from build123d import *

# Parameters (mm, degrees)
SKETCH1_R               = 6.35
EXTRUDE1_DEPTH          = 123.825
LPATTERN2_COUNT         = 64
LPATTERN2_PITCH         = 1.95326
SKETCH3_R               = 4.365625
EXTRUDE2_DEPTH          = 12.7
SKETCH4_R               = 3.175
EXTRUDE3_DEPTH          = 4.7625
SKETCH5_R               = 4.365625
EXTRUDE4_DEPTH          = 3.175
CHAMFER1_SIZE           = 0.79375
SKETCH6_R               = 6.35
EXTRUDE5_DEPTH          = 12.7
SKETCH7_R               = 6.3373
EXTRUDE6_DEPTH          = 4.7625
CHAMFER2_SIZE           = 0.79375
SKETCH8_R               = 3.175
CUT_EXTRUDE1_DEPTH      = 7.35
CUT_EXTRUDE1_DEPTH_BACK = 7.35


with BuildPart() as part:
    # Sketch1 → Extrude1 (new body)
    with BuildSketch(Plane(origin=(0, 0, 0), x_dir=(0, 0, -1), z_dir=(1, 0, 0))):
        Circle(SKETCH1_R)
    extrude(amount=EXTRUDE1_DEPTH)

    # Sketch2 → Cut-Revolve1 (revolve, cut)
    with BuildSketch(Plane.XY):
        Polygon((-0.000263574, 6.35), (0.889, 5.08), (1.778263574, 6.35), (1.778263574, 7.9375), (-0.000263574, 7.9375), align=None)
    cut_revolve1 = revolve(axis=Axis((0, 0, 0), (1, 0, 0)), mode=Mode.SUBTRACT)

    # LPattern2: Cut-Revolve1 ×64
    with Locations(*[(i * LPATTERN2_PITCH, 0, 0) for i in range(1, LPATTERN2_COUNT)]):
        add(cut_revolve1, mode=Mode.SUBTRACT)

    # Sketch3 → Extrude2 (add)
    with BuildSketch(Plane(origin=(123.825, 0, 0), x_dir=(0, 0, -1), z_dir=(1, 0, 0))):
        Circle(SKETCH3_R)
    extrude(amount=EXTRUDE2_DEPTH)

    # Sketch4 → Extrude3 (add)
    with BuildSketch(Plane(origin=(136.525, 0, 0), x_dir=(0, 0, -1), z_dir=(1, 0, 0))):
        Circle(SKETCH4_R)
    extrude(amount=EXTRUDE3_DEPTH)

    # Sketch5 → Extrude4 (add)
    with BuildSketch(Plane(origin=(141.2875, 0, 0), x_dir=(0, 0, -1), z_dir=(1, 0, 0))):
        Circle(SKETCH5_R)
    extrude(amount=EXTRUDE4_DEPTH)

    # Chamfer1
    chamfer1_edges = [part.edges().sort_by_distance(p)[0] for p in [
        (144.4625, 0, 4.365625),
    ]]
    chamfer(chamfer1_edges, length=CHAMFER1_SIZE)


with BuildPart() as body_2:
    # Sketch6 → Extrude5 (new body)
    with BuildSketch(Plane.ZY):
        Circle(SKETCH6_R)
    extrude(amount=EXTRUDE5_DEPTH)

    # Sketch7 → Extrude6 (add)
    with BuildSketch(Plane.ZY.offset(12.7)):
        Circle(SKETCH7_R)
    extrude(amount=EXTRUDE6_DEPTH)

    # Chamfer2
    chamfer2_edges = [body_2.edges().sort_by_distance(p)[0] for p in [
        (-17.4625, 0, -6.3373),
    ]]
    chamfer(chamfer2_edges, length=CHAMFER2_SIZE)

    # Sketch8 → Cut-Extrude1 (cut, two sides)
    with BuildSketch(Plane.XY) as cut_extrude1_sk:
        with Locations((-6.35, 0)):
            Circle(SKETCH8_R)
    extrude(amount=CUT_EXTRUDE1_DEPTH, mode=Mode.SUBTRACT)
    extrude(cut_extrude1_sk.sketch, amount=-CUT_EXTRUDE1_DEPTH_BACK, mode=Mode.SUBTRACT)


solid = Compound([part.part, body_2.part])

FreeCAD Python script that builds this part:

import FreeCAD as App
import Part
import Sketcher
from FreeCAD import Vector
Q = App.Units.Quantity


def edges_at(feature, points):
    """Names of the edges that pass closest to the given points."""
    edges = feature.Shape.Edges
    near = lambda p: min(range(len(edges)), key=lambda i: edges[i].distToShape(Part.Vertex(*p))[0])
    return sorted({f"Edge{near(p) + 1}" for p in points})

doc = App.newDocument("Part")
body = doc.addObject("PartDesign::Body", "Body")

sketch1 = doc.addObject("Sketcher::SketchObject", "Sketch")
body.addObject(sketch1)
sketch1.AttachmentSupport = (doc.YZ_Plane, [""])
sketch1.MapMode = "FlatFace"
sketch1.addGeometry(Part.Circle(Vector(0, 0, 0), Vector(0, 0, 1), 6), False)
sketch1.addConstraint(Sketcher.Constraint("Coincident", 0, 3, -1, 1))
sketch1.addConstraint(Sketcher.Constraint("Diameter", 0, Q("0.5 in")))
pad1 = doc.addObject("PartDesign::Pad", "Pad")
body.addObject(pad1)
pad1.Profile = sketch1
pad1.Length = Q("4.875 in")

sketch2 = doc.addObject("Sketcher::SketchObject", "Sketch001")
body.addObject(sketch2)
sketch2.AttachmentSupport = (doc.XY_Plane, [""])
sketch2.MapMode = "FlatFace"
sketch2.addGeometry(Part.LineSegment(Vector(0, 6.3, 0), Vector(0.9, 5.1, 0)), False)
sketch2.addGeometry(Part.LineSegment(Vector(0.9, 5.1, 0), Vector(1.8, 6.3, 0)), False)
sketch2.addGeometry(Part.LineSegment(Vector(1.8, 6.3, 0), Vector(1.8, 7.9, 0)), False)
sketch2.addGeometry(Part.LineSegment(Vector(1.8, 7.9, 0), Vector(0, 7.9, 0)), False)
sketch2.addGeometry(Part.LineSegment(Vector(0, 7.9, 0), Vector(0, 6.3, 0)), False)
sketch2.addConstraint(Sketcher.Constraint("Coincident", 0, 2, 1, 1))
sketch2.addConstraint(Sketcher.Constraint("Coincident", 1, 2, 2, 1))
sketch2.addConstraint(Sketcher.Constraint("Coincident", 2, 2, 3, 1))
sketch2.addConstraint(Sketcher.Constraint("Coincident", 3, 2, 4, 1))
sketch2.addConstraint(Sketcher.Constraint("Coincident", 4, 2, 0, 1))
sketch2.addConstraint(Sketcher.Constraint("Vertical", 2))
sketch2.addConstraint(Sketcher.Constraint("Horizontal", 3))
sketch2.addConstraint(Sketcher.Constraint("Vertical", 4))
sketch2.addConstraint(Sketcher.Constraint("Horizontal", 1, 2, 4, 2))
sketch2.addConstraint(Sketcher.Constraint("Equal", 0, 1))
sketch2.addConstraint(Sketcher.Constraint("Angle", 0, Q("-55 deg")))
sketch2.addConstraint(Sketcher.Constraint("DistanceY", -1, 1, 0, 2, Q("0.2 in")))
sketch2.addConstraint(Sketcher.Constraint("DistanceY", 2, 1, 2, 2, Q("0.0625 in")))
sketch2.addConstraint(Sketcher.Constraint("DistanceY", -1, 1, 1, 2, Q("0.25 in")))
sketch2.addConstraint(Sketcher.Constraint("DistanceX", -1, 1, 0, 2, Q("0.035 in")))
groove = doc.addObject("PartDesign::Groove", "Groove")
body.addObject(groove)
groove.Profile = sketch2
groove.ReferenceAxis = (sketch2, ["H_Axis"])
groove.Angle = 360
doc.recompute()

linearpattern = doc.addObject("PartDesign::LinearPattern", "LinearPattern")
body.addObject(linearpattern)
linearpattern.Originals = [groove]
linearpattern.Direction = (doc.X_Axis, [""])
linearpattern.Mode = "offset"
linearpattern.Offset = Q("0.0769 in")
linearpattern.Occurrences = 64
body.Tip = linearpattern

sketch3 = doc.addObject("Sketcher::SketchObject", "Sketch002")
body.addObject(sketch3)
sketch3.AttachmentSupport = (doc.YZ_Plane, [""])
sketch3.MapMode = "FlatFace"
sketch3.AttachmentOffset = App.Placement(Vector(0, 0, 4.875 * 25.4), App.Rotation())
sketch3.addGeometry(Part.Circle(Vector(0, 0, 0), Vector(0, 0, 1), 4.4), False)
sketch3.addConstraint(Sketcher.Constraint("Coincident", 0, 3, -1, 1))
sketch3.addConstraint(Sketcher.Constraint("Diameter", 0, Q("0.34375 in")))
pad2 = doc.addObject("PartDesign::Pad", "Pad001")
body.addObject(pad2)
pad2.Profile = sketch3
pad2.Length = Q("0.5 in")

sketch4 = doc.addObject("Sketcher::SketchObject", "Sketch003")
body.addObject(sketch4)
sketch4.AttachmentSupport = (doc.YZ_Plane, [""])
sketch4.MapMode = "FlatFace"
sketch4.AttachmentOffset = App.Placement(Vector(0, 0, 5.375 * 25.4), App.Rotation())
sketch4.addGeometry(Part.Circle(Vector(0, 0, 0), Vector(0, 0, 1), 3.2), False)
sketch4.addConstraint(Sketcher.Constraint("Coincident", 0, 3, -1, 1))
sketch4.addConstraint(Sketcher.Constraint("Diameter", 0, Q("0.25 in")))
pad3 = doc.addObject("PartDesign::Pad", "Pad002")
body.addObject(pad3)
pad3.Profile = sketch4
pad3.Length = Q("0.1875 in")

sketch5 = doc.addObject("Sketcher::SketchObject", "Sketch004")
body.addObject(sketch5)
sketch5.AttachmentSupport = (doc.YZ_Plane, [""])
sketch5.MapMode = "FlatFace"
sketch5.AttachmentOffset = App.Placement(Vector(0, 0, 5.5625 * 25.4), App.Rotation())
sketch5.addGeometry(Part.Circle(Vector(0, 0, 0), Vector(0, 0, 1), 4.4), False)
sketch5.addConstraint(Sketcher.Constraint("Coincident", 0, 3, -1, 1))
sketch5.addConstraint(Sketcher.Constraint("Diameter", 0, Q("0.34375 in")))
pad4 = doc.addObject("PartDesign::Pad", "Pad003")
body.addObject(pad4)
pad4.Profile = sketch5
pad4.Length = Q("0.125 in")
doc.recompute()

chamfer = doc.addObject("PartDesign::Chamfer", "Chamfer")
body.addObject(chamfer)
chamfer.Base = (pad4, edges_at(pad4, [(144.463, 0, 4.366)]))
chamfer.Size = Q("0.03125 in")
body2 = doc.addObject("PartDesign::Body", "Body001")

sketch6 = doc.addObject("Sketcher::SketchObject", "Sketch005")
body2.addObject(sketch6)
sketch6.AttachmentSupport = (doc.getObject("YZ_Plane001"), [""])
sketch6.MapMode = "FlatFace"
sketch6.addGeometry(Part.Circle(Vector(0, 0, 0), Vector(0, 0, 1), 6), False)
sketch6.addConstraint(Sketcher.Constraint("Coincident", 0, 3, -1, 1))
sketch6.addConstraint(Sketcher.Constraint("Diameter", 0, Q("0.5 in")))
pad5 = doc.addObject("PartDesign::Pad", "Pad004")
body2.addObject(pad5)
pad5.Profile = sketch6
pad5.Length = Q("0.5 in")
pad5.Reversed = True

sketch7 = doc.addObject("Sketcher::SketchObject", "Sketch006")
body2.addObject(sketch7)
sketch7.AttachmentSupport = (doc.getObject("YZ_Plane001"), [""])
sketch7.MapMode = "FlatFace"
sketch7.AttachmentOffset = App.Placement(Vector(0, 0, -0.5 * 25.4), App.Rotation())
sketch7.addGeometry(Part.Circle(Vector(0, 0, 0), Vector(0, 0, 1), 6), False)
sketch7.addConstraint(Sketcher.Constraint("Coincident", 0, 3, -1, 1))
sketch7.addConstraint(Sketcher.Constraint("Diameter", 0, Q("0.499 in")))
pad6 = doc.addObject("PartDesign::Pad", "Pad005")
body2.addObject(pad6)
pad6.Profile = sketch7
pad6.Length = Q("0.1875 in")
pad6.Reversed = True
doc.recompute()

chamfer2 = doc.addObject("PartDesign::Chamfer", "Chamfer001")
body2.addObject(chamfer2)
chamfer2.Base = (pad6, edges_at(pad6, [(-17.462, 0, -6.337)]))
chamfer2.Size = Q("0.03125 in")

sketch8 = doc.addObject("Sketcher::SketchObject", "Sketch007")
body2.addObject(sketch8)
sketch8.AttachmentSupport = (doc.getObject("XY_Plane001"), [""])
sketch8.MapMode = "FlatFace"
sketch8.addGeometry(Part.Circle(Vector(-6.3, 0, 0), Vector(0, 0, 1), 3.2), False)
sketch8.addConstraint(Sketcher.Constraint("PointOnObject", 0, 3, -1))
sketch8.addConstraint(Sketcher.Constraint("Diameter", 0, Q("0.25 in")))
sketch8.addConstraint(Sketcher.Constraint("DistanceX", 0, 3, -1, 1, Q("0.25 in")))
pocket1 = doc.addObject("PartDesign::Pocket", "Pocket")
body2.addObject(pocket1)
pocket1.Profile = sketch8
pocket1.Type = "ThroughAll"
pocket1.Midplane = True

doc.recompute()
